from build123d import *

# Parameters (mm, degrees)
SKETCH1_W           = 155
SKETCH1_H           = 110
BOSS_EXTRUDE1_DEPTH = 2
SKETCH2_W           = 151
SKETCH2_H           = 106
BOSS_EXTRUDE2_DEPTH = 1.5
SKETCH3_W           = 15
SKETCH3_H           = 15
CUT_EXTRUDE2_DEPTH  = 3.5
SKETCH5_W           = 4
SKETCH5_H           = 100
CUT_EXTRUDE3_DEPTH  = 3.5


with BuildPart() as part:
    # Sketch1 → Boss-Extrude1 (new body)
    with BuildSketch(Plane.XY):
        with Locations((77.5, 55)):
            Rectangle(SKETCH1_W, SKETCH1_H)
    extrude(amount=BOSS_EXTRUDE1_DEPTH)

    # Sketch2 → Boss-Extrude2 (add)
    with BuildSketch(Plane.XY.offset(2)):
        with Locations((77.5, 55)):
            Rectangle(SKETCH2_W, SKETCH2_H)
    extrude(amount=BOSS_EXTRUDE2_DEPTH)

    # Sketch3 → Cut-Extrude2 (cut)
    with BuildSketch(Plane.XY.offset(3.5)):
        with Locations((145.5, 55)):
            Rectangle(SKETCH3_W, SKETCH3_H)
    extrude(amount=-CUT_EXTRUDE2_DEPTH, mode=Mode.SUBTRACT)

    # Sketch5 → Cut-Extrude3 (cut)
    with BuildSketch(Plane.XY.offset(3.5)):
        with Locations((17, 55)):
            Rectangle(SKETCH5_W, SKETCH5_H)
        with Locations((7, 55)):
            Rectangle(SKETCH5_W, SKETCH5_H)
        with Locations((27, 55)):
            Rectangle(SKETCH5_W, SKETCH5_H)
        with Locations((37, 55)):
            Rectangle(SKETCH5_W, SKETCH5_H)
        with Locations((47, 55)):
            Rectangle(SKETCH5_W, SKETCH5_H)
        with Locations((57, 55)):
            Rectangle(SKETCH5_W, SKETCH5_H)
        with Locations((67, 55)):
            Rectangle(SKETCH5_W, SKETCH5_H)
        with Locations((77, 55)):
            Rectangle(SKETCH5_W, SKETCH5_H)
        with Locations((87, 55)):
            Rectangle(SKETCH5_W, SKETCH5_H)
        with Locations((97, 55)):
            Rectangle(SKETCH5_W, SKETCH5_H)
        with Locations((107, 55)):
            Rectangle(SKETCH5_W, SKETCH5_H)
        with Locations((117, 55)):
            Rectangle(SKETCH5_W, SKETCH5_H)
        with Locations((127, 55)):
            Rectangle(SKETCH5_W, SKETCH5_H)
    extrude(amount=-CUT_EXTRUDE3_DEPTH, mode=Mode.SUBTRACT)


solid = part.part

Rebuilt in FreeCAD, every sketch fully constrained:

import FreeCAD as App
import Part
import Sketcher
Q = App.Units.Quantity

doc = App.newDocument("Part")
body = doc.addObject("PartDesign::Body", "Body")

# Sketch on XY plane
sketch1 = body.newObject("Sketcher::SketchObject", "Sketch")
sketch1.AttachmentSupport = (doc.getObject("XY_Plane"), [""])
sketch1.MapMode = "FlatFace"
sketch1.addGeometry(Part.LineSegment(App.Vector(0, 110, 0), App.Vector(0, 0, 0)), False)
sketch1.addGeometry(Part.LineSegment(App.Vector(0, 0, 0), App.Vector(155, 0, 0)), False)
sketch1.addGeometry(Part.LineSegment(App.Vector(155, 0, 0), App.Vector(155, 110, 0)), False)
sketch1.addGeometry(Part.LineSegment(App.Vector(155, 110, 0), App.Vector(0, 110, 0)), False)
sketch1.addConstraint(Sketcher.Constraint("Coincident", 0, 2, 1, 1))
sketch1.addConstraint(Sketcher.Constraint("Coincident", 1, 2, 2, 1))
sketch1.addConstraint(Sketcher.Constraint("Coincident", 2, 2, 3, 1))
sketch1.addConstraint(Sketcher.Constraint("Coincident", 3, 2, 0, 1))
sketch1.addConstraint(Sketcher.Constraint("Vertical", 0))
sketch1.addConstraint(Sketcher.Constraint("Horizontal", 1))
sketch1.addConstraint(Sketcher.Constraint("Vertical", 2))
sketch1.addConstraint(Sketcher.Constraint("Horizontal", 3))
sketch1.addConstraint(Sketcher.Constraint("Coincident", 0, 2, -1, 1))
sketch1.addConstraint(Sketcher.Constraint("DistanceX", 1, 1, 1, 2, Q("155 mm")))
sketch1.addConstraint(Sketcher.Constraint("DistanceY", 0, 2, 0, 1, Q("110 mm")))
pad1 = body.newObject("PartDesign::Pad", "Pad")
pad1.Profile = sketch1
pad1.Length = 2

# Sketch on XY plane
sketch2 = body.newObject("Sketcher::SketchObject", "Sketch001")
sketch2.AttachmentSupport = (doc.getObject("XY_Plane"), [""])
sketch2.MapMode = "FlatFace"
sketch2.AttachmentOffset = App.Placement(App.Vector(0, 0, 2), App.Rotation())
sketch2.addGeometry(Part.LineSegment(App.Vector(2, 108, 0), App.Vector(2, 2, 0)), False)
sketch2.addGeometry(Part.LineSegment(App.Vector(2, 2, 0), App.Vector(153, 2, 0)), False)
sketch2.addGeometry(Part.LineSegment(App.Vector(153, 2, 0), App.Vector(153, 108, 0)), False)
sketch2.addGeometry(Part.LineSegment(App.Vector(153, 108, 0), App.Vector(2, 108, 0)), False)
sketch2.addConstraint(Sketcher.Constraint("Coincident", 0, 2, 1, 1))
sketch2.addConstraint(Sketcher.Constraint("Coincident", 1, 2, 2, 1))
sketch2.addConstraint(Sketcher.Constraint("Coincident", 2, 2, 3, 1))
sketch2.addConstraint(Sketcher.Constraint("Coincident", 3, 2, 0, 1))
sketch2.addConstraint(Sketcher.Constraint("Vertical", 0))
sketch2.addConstraint(Sketcher.Constraint("Horizontal", 1))
sketch2.addConstraint(Sketcher.Constraint("Vertical", 2))
sketch2.addConstraint(Sketcher.Constraint("Horizontal", 3))
sketch2.addConstraint(Sketcher.Constraint("DistanceX", 1, 1, 1, 2, Q("151 mm")))
sketch2.addConstraint(Sketcher.Constraint("DistanceY", 0, 2, 0, 1, Q("106 mm")))
sketch2.addConstraint(Sketcher.Constraint("DistanceX", -1, 1, 0, 2, Q("2 mm")))
sketch2.addConstraint(Sketcher.Constraint("DistanceY", -1, 1, 0, 2, Q("2 mm")))
pad2 = body.newObject("PartDesign::Pad", "Pad001")
pad2.Profile = sketch2
pad2.Length = 1.5

# Sketch on XY plane
sketch3 = body.newObject("Sketcher::SketchObject", "Sketch002")
sketch3.AttachmentSupport = (doc.getObject("XY_Plane"), [""])
sketch3.MapMode = "FlatFace"
sketch3.AttachmentOffset = App.Placement(App.Vector(0, 0, 3.5), App.Rotation())
sketch3.addGeometry(Part.LineSegment(App.Vector(138, 62.5, 0), App.Vector(138, 47.5, 0)), False)
sketch3.addGeometry(Part.LineSegment(App.Vector(138, 47.5, 0), App.Vector(153, 47.5, 0)), False)
sketch3.addGeometry(Part.LineSegment(App.Vector(153, 47.5, 0), App.Vector(153, 62.5, 0)), False)
sketch3.addGeometry(Part.LineSegment(App.Vector(153, 62.5, 0), App.Vector(138, 62.5, 0)), False)
sketch3.addConstraint(Sketcher.Constraint("Coincident", 0, 2, 1, 1))
sketch3.addConstraint(Sketcher.Constraint("Coincident", 1, 2, 2, 1))
sketch3.addConstraint(Sketcher.Constraint("Coincident", 2, 2, 3, 1))
sketch3.addConstraint(Sketcher.Constraint("Coincident", 3, 2, 0, 1))
sketch3.addConstraint(Sketcher.Constraint("Vertical", 0))
sketch3.addConstraint(Sketcher.Constraint("Horizontal", 1))
sketch3.addConstraint(Sketcher.Constraint("Vertical", 2))
sketch3.addConstraint(Sketcher.Constraint("Horizontal", 3))
sketch3.addConstraint(Sketcher.Constraint("Equal", 3, 0))
sketch3.addConstraint(Sketcher.Constraint("DistanceX", 1, 1, 1, 2, Q("15 mm")))
sketch3.addConstraint(Sketcher.Constraint("DistanceX", -1, 1, 0, 2, Q("138 mm")))
sketch3.addConstraint(Sketcher.Constraint("DistanceY", -1, 1, 0, 2, Q("47.5 mm")))
pocket1 = body.newObject("PartDesign::Pocket", "Pocket")
pocket1.Profile = sketch3
pocket1.Length = 3.5

# Sketch on XY plane
sketch4 = body.newObject("Sketcher::SketchObject", "Sketch003")
sketch4.AttachmentSupport = (doc.getObject("XY_Plane"), [""])
sketch4.MapMode = "FlatFace"
sketch4.AttachmentOffset = App.Placement(App.Vector(0, 0, 3.5), App.Rotation())
sketch4.addGeometry(Part.LineSegment(App.Vector(15, 105, 0), App.Vector(15, 5, 0)), False)
sketch4.addGeometry(Part.LineSegment(App.Vector(15, 5, 0), App.Vector(19, 5, 0)), False)
sketch4.addGeometry(Part.LineSegment(App.Vector(19, 5, 0), App.Vector(19, 105, 0)), False)
sketch4.addGeometry(Part.LineSegment(App.Vector(19, 105, 0), App.Vector(15, 105, 0)), False)
sketch4.addGeometry(Part.LineSegment(App.Vector(5, 105, 0), App.Vector(5, 5, 0)), False)
sketch4.addGeometry(Part.LineSegment(App.Vector(5, 5, 0), App.Vector(9, 5, 0)), False)
sketch4.addGeometry(Part.LineSegment(App.Vector(9, 5, 0), App.Vector(9, 105, 0)), False)
sketch4.addGeometry(Part.LineSegment(App.Vector(9, 105, 0), App.Vector(5, 105, 0)), False)
sketch4.addGeometry(Part.LineSegment(App.Vector(25, 105, 0), App.Vector(25, 5, 0)), False)
sketch4.addGeometry(Part.LineSegment(App.Vector(25, 5, 0), App.Vector(29, 5, 0)), False)
sketch4.addGeometry(Part.LineSegment(App.Vector(29, 5, 0), App.Vector(29, 105, 0)), False)
sketch4.addGeometry(Part.LineSegment(App.Vector(29, 105, 0), App.Vector(25, 105, 0)), False)
sketch4.addGeometry(Part.LineSegment(App.Vector(35, 105, 0), App.Vector(35, 5, 0)), False)
sketch4.addGeometry(Part.LineSegment(App.Vector(35, 5, 0), App.Vector(39, 5, 0)), False)
sketch4.addGeometry(Part.LineSegment(App.Vector(39, 5, 0), App.Vector(39, 105, 0)), False)
sketch4.addGeometry(Part.LineSegment(App.Vector(39, 105, 0), App.Vector(35, 105, 0)), False)
sketch4.addGeometry(Part.LineSegment(App.Vector(45, 105, 0), App.Vector(45, 5, 0)), False)
sketch4.addGeometry(Part.LineSegment(App.Vector(45, 5, 0), App.Vector(49, 5, 0)), False)
sketch4.addGeometry(Part.LineSegment(App.Vector(49, 5, 0), App.Vector(49, 105, 0)), False)
sketch4.addGeometry(Part.LineSegment(App.Vector(49, 105, 0), App.Vector(45, 105, 0)), False)
sketch4.addGeometry(Part.LineSegment(App.Vector(55, 105, 0), App.Vector(55, 5, 0)), False)
sketch4.addGeometry(Part.LineSegment(App.Vector(55, 5, 0), App.Vector(59, 5, 0)), False)
sketch4.addGeometry(Part.LineSegment(App.Vector(59, 5, 0), App.Vector(59, 105, 0)), False)
sketch4.addGeometry(Part.LineSegment(App.Vector(59, 105, 0), App.Vector(55, 105, 0)), False)
sketch4.addGeometry(Part.LineSegment(App.Vector(65, 105, 0), App.Vector(65, 5, 0)), False)
sketch4.addGeometry(Part.LineSegment(App.Vector(65, 5, 0), App.Vector(69, 5, 0)), False)
sketch4.addGeometry(Part.LineSegment(App.Vector(69, 5, 0), App.Vector(69, 105, 0)), False)
sketch4.addGeometry(Part.LineSegment(App.Vector(69, 105, 0), App.Vector(65, 105, 0)), False)
sketch4.addGeometry(Part.LineSegment(App.Vector(75, 105, 0), App.Vector(75, 5, 0)), False)
sketch4.addGeometry(Part.LineSegment(App.Vector(75, 5, 0), App.Vector(79, 5, 0)), False)
sketch4.addGeometry(Part.LineSegment(App.Vector(79, 5, 0), App.Vector(79, 105, 0)), False)
sketch4.addGeometry(Part.LineSegment(App.Vector(79, 105, 0), App.Vector(75, 105, 0)), False)
sketch4.addGeometry(Part.LineSegment(App.Vector(85, 105, 0), App.Vector(85, 5, 0)), False)
sketch4.addGeometry(Part.LineSegment(App.Vector(85, 5, 0), App.Vector(89, 5, 0)), False)
sketch4.addGeometry(Part.LineSegment(App.Vector(89, 5, 0), App.Vector(89, 105, 0)), False)
sketch4.addGeometry(Part.LineSegment(App.Vector(89, 105, 0), App.Vector(85, 105, 0)), False)
sketch4.addGeometry(Part.LineSegment(App.Vector(95, 105, 0), App.Vector(95, 5, 0)), False)
sketch4.addGeometry(Part.LineSegment(App.Vector(95, 5, 0), App.Vector(99, 5, 0)), False)
sketch4.addGeometry(Part.LineSegment(App.Vector(99, 5, 0), App.Vector(99, 105, 0)), False)
sketch4.addGeometry(Part.LineSegment(App.Vector(99, 105, 0), App.Vector(95, 105, 0)), False)
sketch4.addGeometry(Part.LineSegment(App.Vector(105, 105, 0), App.Vector(105, 5, 0)), False)
sketch4.addGeometry(Part.LineSegment(App.Vector(105, 5, 0), App.Vector(109, 5, 0)), False)
sketch4.addGeometry(Part.LineSegment(App.Vector(109, 5, 0), App.Vector(109, 105, 0)), False)
sketch4.addGeometry(Part.LineSegment(App.Vector(109, 105, 0), App.Vector(105, 105, 0)), False)
sketch4.addGeometry(Part.LineSegment(App.Vector(115, 105, 0), App.Vector(115, 5, 0)), False)
sketch4.addGeometry(Part.LineSegment(App.Vector(115, 5, 0), App.Vector(119, 5, 0)), False)
sketch4.addGeometry(Part.LineSegment(App.Vector(119, 5, 0), App.Vector(119, 105, 0)), False)
sketch4.addGeometry(Part.LineSegment(App.Vector(119, 105, 0), App.Vector(115, 105, 0)), False)
sketch4.addGeometry(Part.LineSegment(App.Vector(125, 105, 0), App.Vector(125, 5, 0)), False)
sketch4.addGeometry(Part.LineSegment(App.Vector(125, 5, 0), App.Vector(129, 5, 0)), False)
sketch4.addGeometry(Part.LineSegment(App.Vector(129, 5, 0), App.Vector(129, 105, 0)), False)
sketch4.addGeometry(Part.LineSegment(App.Vector(129, 105, 0), App.Vector(125, 105, 0)), False)
sketch4.addConstraint(Sketcher.Constraint("Coincident", 0, 2, 1, 1))
sketch4.addConstraint(Sketcher.Constraint("Coincident", 1, 2, 2, 1))
sketch4.addConstraint(Sketcher.Constraint("Coincident", 2, 2, 3, 1))
sketch4.addConstraint(Sketcher.Constraint("Coincident", 3, 2, 0, 1))
sketch4.addConstraint(Sketcher.Constraint("Coincident", 4, 2, 5, 1))
sketch4.addConstraint(Sketcher.Constraint("Coincident", 5, 2, 6, 1))
sketch4.addConstraint(Sketcher.Constraint("Coincident", 6, 2, 7, 1))
sketch4.addConstraint(Sketcher.Constraint("Coincident", 7, 2, 4, 1))
sketch4.addConstraint(Sketcher.Constraint("Coincident", 8, 2, 9, 1))
sketch4.addConstraint(Sketcher.Constraint("Coincident", 9, 2, 10, 1))
sketch4.addConstraint(Sketcher.Constraint("Coincident", 10, 2, 11, 1))
sketch4.addConstraint(Sketcher.Constraint("Coincident", 11, 2, 8, 1))
sketch4.addConstraint(Sketcher.Constraint("Coincident", 12, 2, 13, 1))
sketch4.addConstraint(Sketcher.Constraint("Coincident", 13, 2, 14, 1))
sketch4.addConstraint(Sketcher.Constraint("Coincident", 14, 2, 15, 1))
sketch4.addConstraint(Sketcher.Constraint("Coincident", 15, 2, 12, 1))
sketch4.addConstraint(Sketcher.Constraint("Coincident", 16, 2, 17, 1))
sketch4.addConstraint(Sketcher.Constraint("Coincident", 17, 2, 18, 1))
sketch4.addConstraint(Sketcher.Constraint("Coincident", 18, 2, 19, 1))
sketch4.addConstraint(Sketcher.Constraint("Coincident", 19, 2, 16, 1))
sketch4.addConstraint(Sketcher.Constraint("Coincident", 20, 2, 21, 1))
sketch4.addConstraint(Sketcher.Constraint("Coincident", 21, 2, 22, 1))
sketch4.addConstraint(Sketcher.Constraint("Coincident", 22, 2, 23, 1))
sketch4.addConstraint(Sketcher.Constraint("Coincident", 23, 2, 20, 1))
sketch4.addConstraint(Sketcher.Constraint("Coincident", 24, 2, 25, 1))
sketch4.addConstraint(Sketcher.Constraint("Coincident", 25, 2, 26, 1))
sketch4.addConstraint(Sketcher.Constraint("Coincident", 26, 2, 27, 1))
sketch4.addConstraint(Sketcher.Constraint("Coincident", 27, 2, 24, 1))
sketch4.addConstraint(Sketcher.Constraint("Coincident", 28, 2, 29, 1))
sketch4.addConstraint(Sketcher.Constraint("Coincident", 29, 2, 30, 1))
sketch4.addConstraint(Sketcher.Constraint("Coincident", 30, 2, 31, 1))
sketch4.addConstraint(Sketcher.Constraint("Coincident", 31, 2, 28, 1))
sketch4.addConstraint(Sketcher.Constraint("Coincident", 32, 2, 33, 1))
sketch4.addConstraint(Sketcher.Constraint("Coincident", 33, 2, 34, 1))
sketch4.addConstraint(Sketcher.Constraint("Coincident", 34, 2, 35, 1))
sketch4.addConstraint(Sketcher.Constraint("Coincident", 35, 2, 32, 1))
sketch4.addConstraint(Sketcher.Constraint("Coincident", 36, 2, 37, 1))
sketch4.addConstraint(Sketcher.Constraint("Coincident", 37, 2, 38, 1))
sketch4.addConstraint(Sketcher.Constraint("Coincident", 38, 2, 39, 1))
sketch4.addConstraint(Sketcher.Constraint("Coincident", 39, 2, 36, 1))
sketch4.addConstraint(Sketcher.Constraint("Coincident", 40, 2, 41, 1))
sketch4.addConstraint(Sketcher.Constraint("Coincident", 41, 2, 42, 1))
sketch4.addConstraint(Sketcher.Constraint("Coincident", 42, 2, 43, 1))
sketch4.addConstraint(Sketcher.Constraint("Coincident", 43, 2, 40, 1))
sketch4.addConstraint(Sketcher.Constraint("Coincident", 44, 2, 45, 1))
sketch4.addConstraint(Sketcher.Constraint("Coincident", 45, 2, 46, 1))
sketch4.addConstraint(Sketcher.Constraint("Coincident", 46, 2, 47, 1))
sketch4.addConstraint(Sketcher.Constraint("Coincident", 47, 2, 44, 1))
sketch4.addConstraint(Sketcher.Constraint("Coincident", 48, 2, 49, 1))
sketch4.addConstraint(Sketcher.Constraint("Coincident", 49, 2, 50, 1))
sketch4.addConstraint(Sketcher.Constraint("Coincident", 50, 2, 51, 1))
sketch4.addConstraint(Sketcher.Constraint("Coincident", 51, 2, 48, 1))
sketch4.addConstraint(Sketcher.Constraint("Vertical", 0))
sketch4.addConstraint(Sketcher.Constraint("Horizontal", 1))
sketch4.addConstraint(Sketcher.Constraint("Vertical", 2))
sketch4.addConstraint(Sketcher.Constraint("Horizontal", 3))
sketch4.addConstraint(Sketcher.Constraint("Vertical", 4))
sketch4.addConstraint(Sketcher.Constraint("Horizontal", 5))
sketch4.addConstraint(Sketcher.Constraint("Vertical", 6))
sketch4.addConstraint(Sketcher.Constraint("Horizontal", 7))
sketch4.addConstraint(Sketcher.Constraint("Vertical", 8))
sketch4.addConstraint(Sketcher.Constraint("Horizontal", 9))
sketch4.addConstraint(Sketcher.Constraint("Vertical", 10))
sketch4.addConstraint(Sketcher.Constraint("Horizontal", 11))
sketch4.addConstraint(Sketcher.Constraint("Vertical", 12))
sketch4.addConstraint(Sketcher.Constraint("Horizontal", 13))
sketch4.addConstraint(Sketcher.Constraint("Vertical", 14))
sketch4.addConstraint(Sketcher.Constraint("Horizontal", 15))
sketch4.addConstraint(Sketcher.Constraint("Vertical", 16))
sketch4.addConstraint(Sketcher.Constraint("Horizontal", 17))
sketch4.addConstraint(Sketcher.Constraint("Vertical", 18))
sketch4.addConstraint(Sketcher.Constraint("Horizontal", 19))
sketch4.addConstraint(Sketcher.Constraint("Vertical", 20))
sketch4.addConstraint(Sketcher.Constraint("Horizontal", 21))
sketch4.addConstraint(Sketcher.Constraint("Vertical", 22))
sketch4.addConstraint(Sketcher.Constraint("Horizontal", 23))
sketch4.addConstraint(Sketcher.Constraint("Vertical", 24))
sketch4.addConstraint(Sketcher.Constraint("Horizontal", 25))
sketch4.addConstraint(Sketcher.Constraint("Vertical", 26))
sketch4.addConstraint(Sketcher.Constraint("Horizontal", 27))
sketch4.addConstraint(Sketcher.Constraint("Vertical", 28))
sketch4.addConstraint(Sketcher.Constraint("Horizontal", 29))
sketch4.addConstraint(Sketcher.Constraint("Vertical", 30))
sketch4.addConstraint(Sketcher.Constraint("Horizontal", 31))
sketch4.addConstraint(Sketcher.Constraint("Vertical", 32))
sketch4.addConstraint(Sketcher.Constraint("Horizontal", 33))
sketch4.addConstraint(Sketcher.Constraint("Vertical", 34))
sketch4.addConstraint(Sketcher.Constraint("Horizontal", 35))
sketch4.addConstraint(Sketcher.Constraint("Vertical", 36))
sketch4.addConstraint(Sketcher.Constraint("Horizontal", 37))
sketch4.addConstraint(Sketcher.Constraint("Vertical", 38))
sketch4.addConstraint(Sketcher.Constraint("Horizontal", 39))
sketch4.addConstraint(Sketcher.Constraint("Vertical", 40))
sketch4.addConstraint(Sketcher.Constraint("Horizontal", 41))
sketch4.addConstraint(Sketcher.Constraint("Vertical", 42))
sketch4.addConstraint(Sketcher.Constraint("Horizontal", 43))
sketch4.addConstraint(Sketcher.Constraint("Vertical", 44))
sketch4.addConstraint(Sketcher.Constraint("Horizontal", 45))
sketch4.addConstraint(Sketcher.Constraint("Vertical", 46))
sketch4.addConstraint(Sketcher.Constraint("Horizontal", 47))
sketch4.addConstraint(Sketcher.Constraint("Vertical", 48))
sketch4.addConstraint(Sketcher.Constraint("Horizontal", 49))
sketch4.addConstraint(Sketcher.Constraint("Vertical", 50))
sketch4.addConstraint(Sketcher.Constraint("Horizontal", 51))
sketch4.addConstraint(Sketcher.Constraint("Horizontal", 1, 2, 4, 2))
sketch4.addConstraint(Sketcher.Constraint("Horizontal", 3, 2, 6, 2))
sketch4.addConstraint(Sketcher.Constraint("Horizontal", 5, 2, 8, 2))
sketch4.addConstraint(Sketcher.Constraint("Horizontal", 7, 2, 10, 2))
sketch4.addConstraint(Sketcher.Constraint("Horizontal", 9, 2, 12, 2))
sketch4.addConstraint(Sketcher.Constraint("Horizontal", 11, 2, 14, 2))
sketch4.addConstraint(Sketcher.Constraint("Horizontal", 13, 2, 16, 2))
sketch4.addConstraint(Sketcher.Constraint("Horizontal", 15, 2, 18, 2))
sketch4.addConstraint(Sketcher.Constraint("Horizontal", 17, 2, 20, 2))
sketch4.addConstraint(Sketcher.Constraint("Horizontal", 19, 2, 22, 2))
sketch4.addConstraint(Sketcher.Constraint("Horizontal", 21, 2, 24, 2))
sketch4.addConstraint(Sketcher.Constraint("Horizontal", 23, 2, 26, 2))
sketch4.addConstraint(Sketcher.Constraint("Horizontal", 25, 2, 28, 2))
sketch4.addConstraint(Sketcher.Constraint("Horizontal", 27, 2, 30, 2))
sketch4.addConstraint(Sketcher.Constraint("Horizontal", 29, 2, 32, 2))
sketch4.addConstraint(Sketcher.Constraint("Horizontal", 31, 2, 34, 2))
sketch4.addConstraint(Sketcher.Constraint("Horizontal", 33, 2, 36, 2))
sketch4.addConstraint(Sketcher.Constraint("Horizontal", 35, 2, 38, 2))
sketch4.addConstraint(Sketcher.Constraint("Horizontal", 37, 2, 40, 2))
sketch4.addConstraint(Sketcher.Constraint("Horizontal", 39, 2, 42, 2))
sketch4.addConstraint(Sketcher.Constraint("Horizontal", 41, 2, 44, 2))
sketch4.addConstraint(Sketcher.Constraint("Horizontal", 43, 2, 46, 2))
sketch4.addConstraint(Sketcher.Constraint("Horizontal", 45, 2, 48, 2))
sketch4.addConstraint(Sketcher.Constraint("Horizontal", 47, 2, 50, 2))
sketch4.addConstraint(Sketcher.Constraint("Equal", 3, 5))
sketch4.addConstraint(Sketcher.Constraint("Equal", 7, 9))
sketch4.addConstraint(Sketcher.Constraint("Equal", 11, 13))
sketch4.addConstraint(Sketcher.Constraint("Equal", 15, 17))
sketch4.addConstraint(Sketcher.Constraint("Equal", 19, 21))
sketch4.addConstraint(Sketcher.Constraint("Equal", 23, 25))
sketch4.addConstraint(Sketcher.Constraint("Equal", 27, 29))
sketch4.addConstraint(Sketcher.Constraint("Equal", 31, 33))
sketch4.addConstraint(Sketcher.Constraint("Equal", 35, 37))
sketch4.addConstraint(Sketcher.Constraint("Equal", 39, 41))
sketch4.addConstraint(Sketcher.Constraint("Equal", 43, 45))
sketch4.addConstraint(Sketcher.Constraint("Equal", 47, 49))
sketch4.addConstraint(Sketcher.Constraint("DistanceX", 1, 1, 1, 2, Q("4 mm")))
sketch4.addConstraint(Sketcher.Constraint("DistanceY", 0, 2, 0, 1, Q("100 mm")))
sketch4.addConstraint(Sketcher.Constraint("DistanceX", -1, 1, 0, 2, Q("15 mm")))
sketch4.addConstraint(Sketcher.Constraint("DistanceY", -1, 1, 0, 2, Q("5 mm")))
sketch4.addConstraint(Sketcher.Constraint("DistanceX", -1, 1, 4, 2, Q("5 mm")))
sketch4.addConstraint(Sketcher.Constraint("DistanceX", -1, 1, 8, 2, Q("25 mm")))
sketch4.addConstraint(Sketcher.Constraint("DistanceX", -1, 1, 12, 2, Q("35 mm")))
sketch4.addConstraint(Sketcher.Constraint("DistanceX", -1, 1, 16, 2, Q("45 mm")))
sketch4.addConstraint(Sketcher.Constraint("DistanceX", -1, 1, 20, 2, Q("55 mm")))
sketch4.addConstraint(Sketcher.Constraint("DistanceX", -1, 1, 24, 2, Q("65 mm")))
sketch4.addConstraint(Sketcher.Constraint("DistanceX", -1, 1, 28, 2, Q("75 mm")))
sketch4.addConstraint(Sketcher.Constraint("DistanceX", -1, 1, 32, 2, Q("85 mm")))
sketch4.addConstraint(Sketcher.Constraint("DistanceX", -1, 1, 36, 2, Q("95 mm")))
sketch4.addConstraint(Sketcher.Constraint("DistanceX", -1, 1, 40, 2, Q("105 mm")))
sketch4.addConstraint(Sketcher.Constraint("DistanceX", -1, 1, 44, 2, Q("115 mm")))
sketch4.addConstraint(Sketcher.Constraint("DistanceX", -1, 1, 48, 2, Q("125 mm")))
pocket2 = body.newObject("PartDesign::Pocket", "Pocket001")
pocket2.Profile = sketch4
pocket2.Length = 3.5

doc.recompute()
